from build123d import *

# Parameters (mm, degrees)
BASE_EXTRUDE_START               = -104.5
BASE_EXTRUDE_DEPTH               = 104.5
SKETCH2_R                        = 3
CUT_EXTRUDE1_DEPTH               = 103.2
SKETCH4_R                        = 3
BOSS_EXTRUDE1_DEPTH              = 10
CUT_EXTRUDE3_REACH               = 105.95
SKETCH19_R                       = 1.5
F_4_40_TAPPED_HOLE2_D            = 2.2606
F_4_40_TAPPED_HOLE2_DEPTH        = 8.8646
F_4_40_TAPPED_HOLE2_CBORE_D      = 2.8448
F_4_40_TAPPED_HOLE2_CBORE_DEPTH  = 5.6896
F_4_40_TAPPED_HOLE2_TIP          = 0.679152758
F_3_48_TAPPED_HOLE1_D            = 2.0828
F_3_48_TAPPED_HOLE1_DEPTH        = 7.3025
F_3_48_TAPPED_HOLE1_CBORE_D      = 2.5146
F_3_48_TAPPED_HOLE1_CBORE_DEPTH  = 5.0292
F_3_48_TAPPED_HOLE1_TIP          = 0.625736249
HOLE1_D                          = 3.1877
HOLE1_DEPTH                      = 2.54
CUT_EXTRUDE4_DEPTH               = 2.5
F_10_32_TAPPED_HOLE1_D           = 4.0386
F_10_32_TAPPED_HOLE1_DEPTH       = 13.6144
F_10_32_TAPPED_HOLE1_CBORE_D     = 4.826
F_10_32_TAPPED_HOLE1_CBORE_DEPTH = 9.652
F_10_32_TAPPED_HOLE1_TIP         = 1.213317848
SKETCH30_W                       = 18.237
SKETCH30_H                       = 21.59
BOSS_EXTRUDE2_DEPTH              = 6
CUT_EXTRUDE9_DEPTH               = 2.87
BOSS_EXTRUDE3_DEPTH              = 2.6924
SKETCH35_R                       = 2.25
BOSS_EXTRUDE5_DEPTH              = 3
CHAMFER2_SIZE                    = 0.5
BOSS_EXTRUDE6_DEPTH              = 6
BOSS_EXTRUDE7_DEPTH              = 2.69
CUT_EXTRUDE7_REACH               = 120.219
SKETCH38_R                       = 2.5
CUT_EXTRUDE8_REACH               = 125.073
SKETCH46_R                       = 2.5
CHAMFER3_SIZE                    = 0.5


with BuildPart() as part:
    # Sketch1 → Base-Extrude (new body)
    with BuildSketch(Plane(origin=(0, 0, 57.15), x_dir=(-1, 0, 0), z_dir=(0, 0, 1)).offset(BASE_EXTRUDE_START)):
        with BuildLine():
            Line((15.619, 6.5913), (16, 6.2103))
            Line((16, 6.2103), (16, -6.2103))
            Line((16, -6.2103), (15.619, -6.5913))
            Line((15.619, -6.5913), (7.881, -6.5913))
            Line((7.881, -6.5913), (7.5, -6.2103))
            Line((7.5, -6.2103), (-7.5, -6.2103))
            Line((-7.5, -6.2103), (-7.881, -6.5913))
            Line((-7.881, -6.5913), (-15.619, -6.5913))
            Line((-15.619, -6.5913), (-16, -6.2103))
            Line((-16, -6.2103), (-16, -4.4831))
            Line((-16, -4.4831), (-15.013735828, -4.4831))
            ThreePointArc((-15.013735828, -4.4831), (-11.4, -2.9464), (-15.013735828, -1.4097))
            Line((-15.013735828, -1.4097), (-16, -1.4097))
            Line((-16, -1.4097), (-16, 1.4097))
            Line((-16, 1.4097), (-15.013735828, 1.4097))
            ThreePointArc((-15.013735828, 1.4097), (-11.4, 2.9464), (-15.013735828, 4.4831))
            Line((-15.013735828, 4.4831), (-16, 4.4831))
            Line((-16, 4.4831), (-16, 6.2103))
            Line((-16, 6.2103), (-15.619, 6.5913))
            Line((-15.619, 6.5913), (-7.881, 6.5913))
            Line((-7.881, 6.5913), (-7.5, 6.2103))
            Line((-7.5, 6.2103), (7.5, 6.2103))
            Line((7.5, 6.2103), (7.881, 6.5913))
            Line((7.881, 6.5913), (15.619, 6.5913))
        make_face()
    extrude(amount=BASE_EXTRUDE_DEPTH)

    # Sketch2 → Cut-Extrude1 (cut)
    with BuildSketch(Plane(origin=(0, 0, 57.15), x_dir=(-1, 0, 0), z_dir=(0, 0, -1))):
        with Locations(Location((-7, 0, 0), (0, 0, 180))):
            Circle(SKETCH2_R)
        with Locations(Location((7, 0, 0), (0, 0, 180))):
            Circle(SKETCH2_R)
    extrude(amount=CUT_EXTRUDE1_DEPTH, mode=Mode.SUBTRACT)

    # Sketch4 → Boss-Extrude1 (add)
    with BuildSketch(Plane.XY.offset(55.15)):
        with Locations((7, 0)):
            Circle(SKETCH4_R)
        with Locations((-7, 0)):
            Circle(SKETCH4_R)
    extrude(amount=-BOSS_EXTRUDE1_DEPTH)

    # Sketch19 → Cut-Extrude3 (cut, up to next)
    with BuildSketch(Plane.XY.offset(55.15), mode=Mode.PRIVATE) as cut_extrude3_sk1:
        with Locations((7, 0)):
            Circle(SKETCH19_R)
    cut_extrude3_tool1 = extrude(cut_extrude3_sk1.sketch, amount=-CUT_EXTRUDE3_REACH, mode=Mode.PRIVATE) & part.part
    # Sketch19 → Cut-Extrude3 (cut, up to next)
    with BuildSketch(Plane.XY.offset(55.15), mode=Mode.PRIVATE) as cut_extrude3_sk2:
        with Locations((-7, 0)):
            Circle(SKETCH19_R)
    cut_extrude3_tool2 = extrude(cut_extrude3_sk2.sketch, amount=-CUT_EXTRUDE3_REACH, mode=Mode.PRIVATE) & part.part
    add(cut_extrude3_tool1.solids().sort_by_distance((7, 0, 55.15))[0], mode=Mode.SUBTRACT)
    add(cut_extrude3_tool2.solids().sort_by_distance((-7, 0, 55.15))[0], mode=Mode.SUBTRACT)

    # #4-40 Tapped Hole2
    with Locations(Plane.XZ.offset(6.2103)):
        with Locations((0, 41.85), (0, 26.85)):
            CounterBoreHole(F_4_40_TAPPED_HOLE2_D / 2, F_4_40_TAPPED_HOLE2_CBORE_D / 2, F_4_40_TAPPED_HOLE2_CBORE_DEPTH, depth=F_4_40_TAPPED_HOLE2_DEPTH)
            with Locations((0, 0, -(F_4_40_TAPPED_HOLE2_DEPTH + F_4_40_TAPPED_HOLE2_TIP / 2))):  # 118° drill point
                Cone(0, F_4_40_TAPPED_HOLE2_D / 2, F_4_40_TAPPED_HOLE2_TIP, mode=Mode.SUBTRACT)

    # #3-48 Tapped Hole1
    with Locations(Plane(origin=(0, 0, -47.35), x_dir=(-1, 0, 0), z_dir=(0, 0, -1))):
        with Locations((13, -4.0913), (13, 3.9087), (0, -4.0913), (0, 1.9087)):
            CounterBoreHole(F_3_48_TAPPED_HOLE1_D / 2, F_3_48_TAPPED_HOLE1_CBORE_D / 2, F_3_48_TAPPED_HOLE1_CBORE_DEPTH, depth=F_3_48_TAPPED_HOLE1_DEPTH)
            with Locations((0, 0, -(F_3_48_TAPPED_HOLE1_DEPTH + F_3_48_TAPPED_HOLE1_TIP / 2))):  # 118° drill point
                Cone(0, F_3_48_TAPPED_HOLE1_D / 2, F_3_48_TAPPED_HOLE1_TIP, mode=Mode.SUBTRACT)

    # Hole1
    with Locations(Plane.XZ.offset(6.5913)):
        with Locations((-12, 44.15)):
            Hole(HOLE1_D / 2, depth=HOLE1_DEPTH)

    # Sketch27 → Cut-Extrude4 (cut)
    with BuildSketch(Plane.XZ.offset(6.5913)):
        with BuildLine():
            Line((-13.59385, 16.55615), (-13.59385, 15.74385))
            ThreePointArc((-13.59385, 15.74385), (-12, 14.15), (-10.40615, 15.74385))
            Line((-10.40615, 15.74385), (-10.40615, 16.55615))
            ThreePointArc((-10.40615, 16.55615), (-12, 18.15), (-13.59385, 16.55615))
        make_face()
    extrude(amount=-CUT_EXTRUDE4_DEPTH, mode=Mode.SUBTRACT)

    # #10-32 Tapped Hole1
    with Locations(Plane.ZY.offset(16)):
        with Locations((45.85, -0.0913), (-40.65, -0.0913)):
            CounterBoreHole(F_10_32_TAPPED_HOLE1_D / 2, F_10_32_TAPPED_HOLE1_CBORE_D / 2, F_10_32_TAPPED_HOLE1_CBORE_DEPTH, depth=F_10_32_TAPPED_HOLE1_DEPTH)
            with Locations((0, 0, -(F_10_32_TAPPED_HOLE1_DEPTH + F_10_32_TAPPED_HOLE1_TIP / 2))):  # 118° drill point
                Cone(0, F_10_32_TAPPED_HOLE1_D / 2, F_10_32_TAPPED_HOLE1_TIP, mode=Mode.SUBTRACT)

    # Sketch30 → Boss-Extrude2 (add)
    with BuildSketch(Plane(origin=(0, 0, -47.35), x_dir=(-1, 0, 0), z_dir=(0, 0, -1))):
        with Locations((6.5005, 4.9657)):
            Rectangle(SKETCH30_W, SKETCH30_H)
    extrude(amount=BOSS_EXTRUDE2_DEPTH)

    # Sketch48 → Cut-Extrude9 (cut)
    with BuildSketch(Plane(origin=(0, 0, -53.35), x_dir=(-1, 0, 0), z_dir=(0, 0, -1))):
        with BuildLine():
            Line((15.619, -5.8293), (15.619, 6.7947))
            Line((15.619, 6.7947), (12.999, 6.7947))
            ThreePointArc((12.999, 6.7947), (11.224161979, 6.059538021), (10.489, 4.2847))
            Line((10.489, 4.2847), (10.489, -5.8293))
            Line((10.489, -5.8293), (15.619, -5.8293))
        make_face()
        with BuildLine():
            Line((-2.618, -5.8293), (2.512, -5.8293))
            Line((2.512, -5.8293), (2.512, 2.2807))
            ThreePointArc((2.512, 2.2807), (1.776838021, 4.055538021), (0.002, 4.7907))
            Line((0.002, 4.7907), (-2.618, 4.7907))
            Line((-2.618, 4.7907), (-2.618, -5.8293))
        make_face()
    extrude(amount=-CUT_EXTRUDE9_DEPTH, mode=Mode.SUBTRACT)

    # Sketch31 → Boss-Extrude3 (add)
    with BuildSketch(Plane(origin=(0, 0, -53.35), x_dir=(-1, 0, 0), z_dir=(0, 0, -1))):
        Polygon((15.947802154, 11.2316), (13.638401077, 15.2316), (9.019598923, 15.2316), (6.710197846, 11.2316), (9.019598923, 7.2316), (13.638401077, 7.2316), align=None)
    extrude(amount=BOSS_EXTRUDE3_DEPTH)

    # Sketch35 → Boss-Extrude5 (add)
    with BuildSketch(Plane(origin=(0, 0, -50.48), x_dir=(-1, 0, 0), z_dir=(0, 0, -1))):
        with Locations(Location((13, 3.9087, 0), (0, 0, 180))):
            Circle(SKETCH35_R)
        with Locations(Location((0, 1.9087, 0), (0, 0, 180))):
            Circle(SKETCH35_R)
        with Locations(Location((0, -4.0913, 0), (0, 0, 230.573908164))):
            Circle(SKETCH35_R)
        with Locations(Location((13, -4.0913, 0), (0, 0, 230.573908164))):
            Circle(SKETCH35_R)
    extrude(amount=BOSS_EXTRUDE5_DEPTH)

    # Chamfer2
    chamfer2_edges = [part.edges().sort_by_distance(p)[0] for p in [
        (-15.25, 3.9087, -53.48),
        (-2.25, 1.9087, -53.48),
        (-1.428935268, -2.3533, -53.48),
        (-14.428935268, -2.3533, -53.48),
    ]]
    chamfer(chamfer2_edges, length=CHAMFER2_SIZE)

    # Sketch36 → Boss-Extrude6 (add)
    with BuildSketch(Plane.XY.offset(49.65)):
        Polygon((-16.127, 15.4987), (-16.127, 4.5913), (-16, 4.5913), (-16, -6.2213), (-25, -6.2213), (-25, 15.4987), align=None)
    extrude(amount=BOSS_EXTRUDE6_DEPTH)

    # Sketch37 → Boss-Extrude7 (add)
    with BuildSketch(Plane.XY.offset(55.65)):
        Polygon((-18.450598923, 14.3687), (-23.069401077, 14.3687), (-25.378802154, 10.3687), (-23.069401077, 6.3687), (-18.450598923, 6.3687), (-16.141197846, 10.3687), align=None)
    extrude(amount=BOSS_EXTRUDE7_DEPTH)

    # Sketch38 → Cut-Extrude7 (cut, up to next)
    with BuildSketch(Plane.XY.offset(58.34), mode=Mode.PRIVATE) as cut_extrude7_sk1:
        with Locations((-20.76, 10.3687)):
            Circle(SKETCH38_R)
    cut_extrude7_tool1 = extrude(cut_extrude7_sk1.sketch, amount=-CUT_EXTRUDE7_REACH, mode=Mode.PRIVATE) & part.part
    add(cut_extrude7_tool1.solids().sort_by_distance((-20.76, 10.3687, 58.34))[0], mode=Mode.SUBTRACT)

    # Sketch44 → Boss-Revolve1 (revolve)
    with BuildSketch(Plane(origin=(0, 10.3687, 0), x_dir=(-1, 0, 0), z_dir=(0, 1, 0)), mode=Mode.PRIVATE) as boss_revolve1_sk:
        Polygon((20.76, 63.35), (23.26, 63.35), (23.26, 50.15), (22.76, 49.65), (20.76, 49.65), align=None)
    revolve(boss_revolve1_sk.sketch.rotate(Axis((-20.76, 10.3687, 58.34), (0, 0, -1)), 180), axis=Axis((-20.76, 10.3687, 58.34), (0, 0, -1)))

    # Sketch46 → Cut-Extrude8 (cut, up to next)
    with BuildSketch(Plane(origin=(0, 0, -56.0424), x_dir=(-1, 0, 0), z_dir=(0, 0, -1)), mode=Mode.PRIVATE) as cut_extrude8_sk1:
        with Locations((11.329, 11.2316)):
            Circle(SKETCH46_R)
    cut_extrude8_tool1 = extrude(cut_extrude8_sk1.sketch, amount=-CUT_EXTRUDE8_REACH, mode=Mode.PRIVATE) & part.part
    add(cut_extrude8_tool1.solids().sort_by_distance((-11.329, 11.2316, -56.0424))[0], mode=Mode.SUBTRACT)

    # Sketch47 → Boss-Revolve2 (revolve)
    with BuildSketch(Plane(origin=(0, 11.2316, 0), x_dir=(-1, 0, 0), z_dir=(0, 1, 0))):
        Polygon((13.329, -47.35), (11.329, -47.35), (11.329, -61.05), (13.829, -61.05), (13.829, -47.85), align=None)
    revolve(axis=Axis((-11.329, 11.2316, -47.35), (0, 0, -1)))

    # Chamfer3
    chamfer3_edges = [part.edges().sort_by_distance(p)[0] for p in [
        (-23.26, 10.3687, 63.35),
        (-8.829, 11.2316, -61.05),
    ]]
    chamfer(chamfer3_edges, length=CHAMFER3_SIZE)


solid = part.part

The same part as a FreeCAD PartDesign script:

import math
import FreeCAD as App
import Part
import Sketcher

V = App.Vector
Q = App.Units.Quantity


def edges_at(feature, points):
    """Names of the edges that pass closest to the given points."""
    edges = feature.Shape.Edges
    near = lambda p: min(range(len(edges)), key=lambda i: edges[i].distToShape(Part.Vertex(*p))[0])
    return sorted({f"Edge{near(p) + 1}" for p in points})

doc = App.newDocument("Part")
body = doc.addObject("PartDesign::Body", "Body")

sketch1 = body.newObject("Sketcher::SketchObject", "Sketch")
sketch1.AttachmentSupport = (doc.getObject("XY_Plane"), [""])
sketch1.MapMode = "FlatFace"
sketch1.AttachmentOffset = App.Placement(V(0, 0, -47.35), App.Rotation())
sketch1.addGeometry([
    Part.LineSegment(V(-16, -6.2, 0), V(-15.6, -6.6, 0)),
    Part.LineSegment(V(-15.6, -6.6, 0), V(-7.9, -6.6, 0)),
    Part.LineSegment(V(-7.9, -6.6, 0), V(-7.5, -6.2, 0)),
    Part.LineSegment(V(-7.5, -6.2, 0), V(7.5, -6.2, 0)),
    Part.LineSegment(V(7.5, -6.2, 0), V(7.9, -6.6, 0)),
    Part.LineSegment(V(7.9, -6.6, 0), V(15.6, -6.6, 0)),
    Part.LineSegment(V(15.6, -6.6, 0), V(16, -6.2, 0)),
    Part.LineSegment(V(16, -6.2, 0), V(16, -4.5, 0)),
    Part.LineSegment(V(16, -4.5, 0), V(15, -4.5, 0)),
    Part.ArcOfCircle(Part.Circle(V(13.5, -2.9, 0), V(0, 0, 1), 2.1), math.radians(46), math.radians(314)),
    Part.LineSegment(V(15, -1.4, 0), V(16, -1.4, 0)),
    Part.LineSegment(V(16, -1.4, 0), V(16, 1.4, 0)),
    Part.LineSegment(V(16, 1.4, 0), V(15, 1.4, 0)),
    Part.ArcOfCircle(Part.Circle(V(13.5, 2.9, 0), V(0, 0, 1), 2.1), math.radians(46), math.radians(314)),
    Part.LineSegment(V(15, 4.5, 0), V(16, 4.5, 0)),
    Part.LineSegment(V(16, 4.5, 0), V(16, 6.2, 0)),
    Part.LineSegment(V(16, 6.2, 0), V(15.6, 6.6, 0)),
    Part.LineSegment(V(15.6, 6.6, 0), V(7.9, 6.6, 0)),
    Part.LineSegment(V(7.9, 6.6, 0), V(7.5, 6.2, 0)),
    Part.LineSegment(V(7.5, 6.2, 0), V(-7.5, 6.2, 0)),
    Part.LineSegment(V(-7.5, 6.2, 0), V(-7.9, 6.6, 0)),
    Part.LineSegment(V(-7.9, 6.6, 0), V(-15.6, 6.6, 0)),
    Part.LineSegment(V(-15.6, 6.6, 0), V(-16, 6.2, 0)),
    Part.LineSegment(V(-16, 6.2, 0), V(-16, -6.2, 0)),
], False)
sketch1.addConstraint([
    Sketcher.Constraint("Coincident", 0, 2, 1, 1),
    Sketcher.Constraint("Coincident", 1, 2, 2, 1),
    Sketcher.Constraint("Coincident", 2, 2, 3, 1),
    Sketcher.Constraint("Coincident", 3, 2, 4, 1),
    Sketcher.Constraint("Coincident", 4, 2, 5, 1),
    Sketcher.Constraint("Coincident", 5, 2, 6, 1),
    Sketcher.Constraint("Coincident", 6, 2, 7, 1),
    Sketcher.Constraint("Coincident", 7, 2, 8, 1),
    Sketcher.Constraint("Coincident", 8, 2, 9, 2),
    Sketcher.Constraint("Coincident", 9, 1, 10, 1),
    Sketcher.Constraint("Coincident", 10, 2, 11, 1),
    Sketcher.Constraint("Coincident", 11, 2, 12, 1),
    Sketcher.Constraint("Coincident", 12, 2, 13, 2),
    Sketcher.Constraint("Coincident", 13, 1, 14, 1),
    Sketcher.Constraint("Coincident", 14, 2, 15, 1),
    Sketcher.Constraint("Coincident", 15, 2, 16, 1),
    Sketcher.Constraint("Coincident", 16, 2, 17, 1),
    Sketcher.Constraint("Coincident", 17, 2, 18, 1),
    Sketcher.Constraint("Coincident", 18, 2, 19, 1),
    Sketcher.Constraint("Coincident", 19, 2, 20, 1),
    Sketcher.Constraint("Coincident", 20, 2, 21, 1),
    Sketcher.Constraint("Coincident", 21, 2, 22, 1),
    Sketcher.Constraint("Coincident", 22, 2, 23, 1),
    Sketcher.Constraint("Coincident", 23, 2, 0, 1),
    Sketcher.Constraint("Horizontal", 1),
    Sketcher.Constraint("Horizontal", 3),
    Sketcher.Constraint("Horizontal", 5),
    Sketcher.Constraint("Vertical", 7),
    Sketcher.Constraint("Horizontal", 8),
    Sketcher.Constraint("Horizontal", 10),
    Sketcher.Constraint("Vertical", 11),
    Sketcher.Constraint("Horizontal", 12),
    Sketcher.Constraint("Horizontal", 14),
    Sketcher.Constraint("Vertical", 15),
    Sketcher.Constraint("Horizontal", 17),
    Sketcher.Constraint("Horizontal", 19),
    Sketcher.Constraint("Horizontal", 21),
    Sketcher.Constraint("Vertical", 23),
    Sketcher.Constraint("Equal", 9, 13),
    Sketcher.Constraint("Symmetric", 0, 2, 16, 2, -1, 1),
    Sketcher.Constraint("Symmetric", 2, 2, 18, 2, -1, 1),
    Sketcher.Constraint("Symmetric", 4, 2, 20, 2, -1, 1),
    Sketcher.Constraint("Symmetric", 6, 2, 22, 2, -1, 1),
    Sketcher.Constraint("Symmetric", 15, 2, 23, 2, -1, 1),
    Sketcher.Constraint("Symmetric", 1, 2, 4, 2, -2),
    Sketcher.Constraint("Symmetric", 9, 3, 13, 3, -1),
    Sketcher.Constraint("Perpendicular", 0, 2),
    Sketcher.Constraint("Perpendicular", 2, 4),
    Sketcher.Constraint("Perpendicular", 4, 6),
    Sketcher.Constraint("Perpendicular", 16, 18),
    Sketcher.Constraint("Perpendicular", 18, 20),
    Sketcher.Constraint("Perpendicular", 20, 22),
    Sketcher.Constraint("Horizontal", 3, 2, 6, 2),
    Sketcher.Constraint("Horizontal", 15, 2, 18, 2),
    Sketcher.Constraint("Vertical", 8, 2, 9, 1),
    Sketcher.Constraint("Vertical", 7, 2, 10, 2),
    Sketcher.Constraint("Vertical", 9, 1, 12, 2),
    Sketcher.Constraint("Vertical", 12, 2, 13, 1),
    Sketcher.Constraint("Vertical", 5, 2, 16, 2),
    Sketcher.Constraint("DistanceX", 3, 1, 3, 2, Q("15 mm")),
    Sketcher.Constraint("DistanceX", -1, 1, 6, 2, Q("16 mm")),
    Sketcher.Constraint("Radius", 9, Q("2.1336 mm")),
    Sketcher.Constraint("DistanceX", 1, 1, 1, 2, Q("7.738 mm")),
    Sketcher.Constraint("DistanceY", 7, 1, 7, 2, Q("1.7272 mm")),
    Sketcher.Constraint("DistanceY", 11, 1, 11, 2, Q("2.8194 mm")),
    Sketcher.Constraint("DistanceY", 23, 2, 23, 1, Q("12.4206 mm")),
    Sketcher.Constraint("DistanceX", -1, 1, 9, 3, Q("13.5336 mm")),
])
pad1 = body.newObject("PartDesign::Pad", "Pad")
pad1.Profile = sketch1
pad1.Length = 104.5

sketch2 = body.newObject("Sketcher::SketchObject", "Sketch001")
sketch2.AttachmentSupport = (doc.getObject("XY_Plane"), [""])
sketch2.MapMode = "FlatFace"
sketch2.AttachmentOffset = App.Placement(V(0, 0, 57.15), App.Rotation())
sketch2.addGeometry([
    Part.Circle(V(7, 0, 0), V(0, 0, 1), 3),
    Part.Circle(V(-7, 0, 0), V(0, 0, 1), 3),
], False)
sketch2.addConstraint([
    Sketcher.Constraint("Equal", 0, 1),
    Sketcher.Constraint("Symmetric", 0, 3, 1, 3, -1, 1),
    Sketcher.Constraint("PointOnObject", 0, 3, -1),
    Sketcher.Constraint("Diameter", 0, Q("6 mm")),
    Sketcher.Constraint("DistanceX", -1, 1, 0, 3, Q("7 mm")),
])
pocket1 = body.newObject("PartDesign::Pocket", "Pocket")
pocket1.Profile = sketch2
pocket1.Length = 103.2

sketch3 = body.newObject("Sketcher::SketchObject", "Sketch002")
sketch3.AttachmentSupport = (doc.getObject("XY_Plane"), [""])
sketch3.MapMode = "FlatFace"
sketch3.AttachmentOffset = App.Placement(V(0, 0, 55.15), App.Rotation())
sketch3.addGeometry([
    Part.Circle(V(7, 0, 0), V(0, 0, 1), 3),
    Part.Circle(V(-7, 0, 0), V(0, 0, 1), 3),
], False)
sketch3.addConstraint([
    Sketcher.Constraint("Equal", 0, 1),
    Sketcher.Constraint("Symmetric", 0, 3, 1, 3, -1, 1),
    Sketcher.Constraint("PointOnObject", 0, 3, -1),
    Sketcher.Constraint("Diameter", 0, Q("6 mm")),
    Sketcher.Constraint("DistanceX", -1, 1, 0, 3, Q("7 mm")),
])
pad2 = body.newObject("PartDesign::Pad", "Pad001")
pad2.Profile = sketch3
pad2.Length = 10
pad2.Reversed = True

sketch4 = body.newObject("Sketcher::SketchObject", "Sketch003")
sketch4.AttachmentSupport = (doc.getObject("XY_Plane"), [""])
sketch4.MapMode = "FlatFace"
sketch4.AttachmentOffset = App.Placement(V(0, 0, 55.15), App.Rotation())
sketch4.addGeometry(Part.Circle(V(7, 0, 0), V(0, 0, 1), 1.5), False)
sketch4.addConstraint([
    Sketcher.Constraint("PointOnObject", 0, 3, -1),
    Sketcher.Constraint("Diameter", 0, Q("3 mm")),
    Sketcher.Constraint("DistanceX", -1, 1, 0, 3, Q("7 mm")),
])
pocket2 = body.newObject("PartDesign::Pocket", "Pocket001")
pocket2.Profile = sketch4
pocket2.Type = "UpToFirst"

sketch5 = body.newObject("Sketcher::SketchObject", "Sketch004")
sketch5.AttachmentSupport = (doc.getObject("XY_Plane"), [""])
sketch5.MapMode = "FlatFace"
sketch5.AttachmentOffset = App.Placement(V(0, 0, 55.15), App.Rotation())
sketch5.addGeometry(Part.Circle(V(-7, 0, 0), V(0, 0, 1), 1.5), False)
sketch5.addConstraint([
    Sketcher.Constraint("PointOnObject", 0, 3, -1),
    Sketcher.Constraint("Diameter", 0, Q("3 mm")),
    Sketcher.Constraint("DistanceX", 0, 3, -1, 1, Q("7 mm")),
])
pocket3 = body.newObject("PartDesign::Pocket", "Pocket002")
pocket3.Profile = sketch5
pocket3.Type = "UpToFirst"

sketch6 = body.newObject("Sketcher::SketchObject", "Sketch005")
sketch6.AttachmentSupport = (doc.getObject("XZ_Plane"), [""])
sketch6.MapMode = "FlatFace"
sketch6.AttachmentOffset = App.Placement(V(0, 0, 6.2103), App.Rotation())
sketch6.addGeometry([
    Part.Circle(V(0, 41.9, 0), V(0, 0, 1), 1.1),
    Part.Circle(V(0, 26.9, 0), V(0, 0, 1), 1.1),
], False)
sketch6.addConstraint([
    Sketcher.Constraint("Equal", 0, 1),
    Sketcher.Constraint("PointOnObject", 0, 3, -2),
    Sketcher.Constraint("PointOnObject", 1, 3, -2),
    Sketcher.Constraint("DistanceY", 1, 3, 0, 3, Q("15 mm")),
    Sketcher.Constraint("Diameter", 0, Q("2.2606 mm")),
    Sketcher.Constraint("DistanceY", -1, 1, 0, 3, Q("41.85 mm")),
])
doc.recompute()
hole = body.newObject("PartDesign::Hole", "Hole")
hole.Profile = sketch6
hole.ThreadType = "None"
hole.Diameter = 2.2606
hole.DepthType = "Dimension"
hole.Depth = 8.8646
hole.DrillPoint = "Angled"
hole.DrillPointAngle = 118
hole.HoleCutType = "Counterbore"
hole.HoleCutDiameter = 2.8448
hole.HoleCutDepth = 5.6896

sketch7 = body.newObject("Sketcher::SketchObject", "Sketch006")
sketch7.AttachmentSupport = (doc.getObject("XY_Plane"), [""])
sketch7.MapMode = "FlatFace"
sketch7.AttachmentOffset = App.Placement(V(0, 0, -47.35), App.Rotation())
sketch7.addGeometry([
    Part.Circle(V(-13, -4.1, 0), V(0, 0, 1), 1),
    Part.Circle(V(-13, 3.9, 0), V(0, 0, 1), 1),
    Part.Circle(V(0, -4.1, 0), V(0, 0, 1), 1),
    Part.Circle(V(0, 1.9, 0), V(0, 0, 1), 1),
], False)
sketch7.addConstraint([
    Sketcher.Constraint("Equal", 0, 1),
    Sketcher.Constraint("Equal", 1, 2),
    Sketcher.Constraint("Equal", 2, 3),
    Sketcher.Constraint("PointOnObject", 2, 3, -2),
    Sketcher.Constraint("PointOnObject", 3, 3, -2),
    Sketcher.Constraint("Horizontal", 0, 3, 2, 3),
    Sketcher.Constraint("Vertical", 0, 3, 1, 3),
    Sketcher.Constraint("DistanceX", 0, 3, -1, 1, Q("13 mm")),
    Sketcher.Constraint("DistanceY", 0, 3, 1, 3, Q("8 mm")),
    Sketcher.Constraint("DistanceY", 2, 3, 3, 3, Q("6 mm")),
    Sketcher.Constraint("Diameter", 0, Q("2.0828 mm")),
    Sketcher.Constraint("DistanceY", 0, 3, -1, 1, Q("4.0913 mm")),
])
doc.recompute()
hole2 = body.newObject("PartDesign::Hole", "Hole001")
hole2.Profile = sketch7
hole2.ThreadType = "None"
hole2.Diameter = 2.0828
hole2.DepthType = "Dimension"
hole2.Depth = 7.3025
hole2.DrillPoint = "Angled"
hole2.DrillPointAngle = 118
hole2.HoleCutType = "Counterbore"
hole2.HoleCutDiameter = 2.5146
hole2.HoleCutDepth = 5.0292
hole2.Reversed = True

sketch8 = body.newObject("Sketcher::SketchObject", "Sketch007")
sketch8.AttachmentSupport = (doc.getObject("XZ_Plane"), [""])
sketch8.MapMode = "FlatFace"
sketch8.AttachmentOffset = App.Placement(V(0, 0, 6.5913), App.Rotation())
sketch8.addGeometry(Part.Circle(V(-12, 44.1, 0), V(0, 0, 1), 1.6), False)
sketch8.addConstraint([
    Sketcher.Constraint("DistanceX", 0, 3, -1, 1, Q("12 mm")),
    Sketcher.Constraint("Diameter", 0, Q("3.1877 mm")),
    Sketcher.Constraint("DistanceY", -1, 1, 0, 3, Q("44.15 mm")),
])
doc.recompute()
hole3 = body.newObject("PartDesign::Hole", "Hole002")
hole3.Profile = sketch8
hole3.ThreadType = "None"
hole3.Diameter = 3.1877
hole3.DepthType = "Dimension"
hole3.Depth = 2.54
hole3.DrillPoint = "Flat"

sketch9 = body.newObject("Sketcher::SketchObject", "Sketch008")
sketch9.AttachmentSupport = (doc.getObject("XZ_Plane"), [""])
sketch9.MapMode = "FlatFace"
sketch9.AttachmentOffset = App.Placement(V(0, 0, 6.5913), App.Rotation())
sketch9.addGeometry([
    Part.LineSegment(V(-13.6, 16.6, 0), V(-13.6, 15.7, 0)),
    Part.ArcOfCircle(Part.Circle(V(-12, 15.7, 0), V(0, 0, 1), 1.6), math.radians(180), math.radians(360)),
    Part.LineSegment(V(-10.4, 15.7, 0), V(-10.4, 16.6, 0)),
    Part.ArcOfCircle(Part.Circle(V(-12, 16.6, 0), V(0, 0, 1), 1.6), math.radians(0), math.radians(180)),
], False)
sketch9.addConstraint([
    Sketcher.Constraint("Tangent", 0, 2, 1, 1),
    Sketcher.Constraint("Tangent", 1, 2, 2, 1),
    Sketcher.Constraint("Tangent", 2, 2, 3, 1),
    Sketcher.Constraint("Tangent", 3, 2, 0, 1),
    Sketcher.Constraint("Vertical", 0),
    Sketcher.Constraint("Vertical", 2),
    Sketcher.Constraint("DistanceX", 1, 3, -1, 1, Q("12 mm")),
    Sketcher.Constraint("Radius", 1, Q("1.59385 mm")),
    Sketcher.Constraint("DistanceY", 0, 2, 0, 1, Q("0.8123 mm")),
    Sketcher.Constraint("DistanceY", -1, 1, 1, 3, Q("15.74385 mm")),
])
pocket4 = body.newObject("PartDesign::Pocket", "Pocket003")
pocket4.Profile = sketch9
pocket4.Length = 2.5

sketch10 = body.newObject("Sketcher::SketchObject", "Sketch009")
sketch10.AttachmentSupport = (doc.getObject("YZ_Plane"), [""])
sketch10.MapMode = "FlatFace"
sketch10.AttachmentOffset = App.Placement(V(0, 0, -16), App.Rotation())
sketch10.addGeometry([
    Part.Circle(V(-0.1, 45.9, 0), V(0, 0, 1), 2),
    Part.Circle(V(-0.1, -40.6, 0), V(0, 0, 1), 2),
], False)
sketch10.addConstraint([
    Sketcher.Constraint("Equal", 0, 1),
    Sketcher.Constraint("Vertical", 0, 3, 1, 3),
    Sketcher.Constraint("Diameter", 0, Q("4.0386 mm")),
    Sketcher.Constraint("DistanceY", 1, 3, 0, 3, Q("86.5 mm")),
    Sketcher.Constraint("DistanceY", -1, 1, 0, 3, Q("45.85 mm")),
    Sketcher.Constraint("DistanceX", 0, 3, -1, 1, Q("0.0913 mm")),
])
doc.recompute()
hole4 = body.newObject("PartDesign::Hole", "Hole003")
hole4.Profile = sketch10
hole4.ThreadType = "None"
hole4.Diameter = 4.0386
hole4.DepthType = "Dimension"
hole4.Depth = 13.6144
hole4.DrillPoint = "Angled"
hole4.DrillPointAngle = 118
hole4.HoleCutType = "Counterbore"
hole4.HoleCutDiameter = 4.826
hole4.HoleCutDepth = 9.652
hole4.Reversed = True

sketch11 = body.newObject("Sketcher::SketchObject", "Sketch010")
sketch11.AttachmentSupport = (doc.getObject("XY_Plane"), [""])
sketch11.MapMode = "FlatFace"
sketch11.AttachmentOffset = App.Placement(V(0, 0, -47.35), App.Rotation())
sketch11.addGeometry([
    Part.LineSegment(V(3, 16, 0), V(3, -6, 0)),
    Part.LineSegment(V(3, -6, 0), V(-16, -6, 0)),
    Part.LineSegment(V(-16, -6, 0), V(-16, 16, 0)),
    Part.LineSegment(V(-16, 16, 0), V(3, 16, 0)),
], False)
sketch11.addConstraint([
    Sketcher.Constraint("Coincident", 0, 2, 1, 1),
    Sketcher.Constraint("Coincident", 1, 2, 2, 1),
    Sketcher.Constraint("Coincident", 2, 2, 3, 1),
    Sketcher.Constraint("Coincident", 3, 2, 0, 1),
    Sketcher.Constraint("Vertical", 0),
    Sketcher.Constraint("Horizontal", 1),
    Sketcher.Constraint("Vertical", 2),
    Sketcher.Constraint("Horizontal", 3),
    Sketcher.Constraint("DistanceY", 0, 2, 0, 1, Q("21.59 mm")),
    Sketcher.Constraint("DistanceX", 1, 2, 1, 1, Q("18.237 mm")),
    Sketcher.Constraint("DistanceX", -1, 1, 0, 2, Q("2.618 mm")),
    Sketcher.Constraint("DistanceY", 0, 2, -1, 1, Q("5.8293 mm")),
])
pad3 = body.newObject("PartDesign::Pad", "Pad002")
pad3.Profile = sketch11
pad3.Length = 6
pad3.Reversed = True

sketch12 = body.newObject("Sketcher::SketchObject", "Sketch011")
sketch12.AttachmentSupport = (doc.getObject("XY_Plane"), [""])
sketch12.MapMode = "FlatFace"
sketch12.AttachmentOffset = App.Placement(V(0, 0, -53.35), App.Rotation())
sketch12.addGeometry([
    Part.LineSegment(V(-15.6, -5.8, 0), V(-15.6, 6.8, 0)),
    Part.LineSegment(V(-15.6, 6.8, 0), V(-13, 6.8, 0)),
    Part.ArcOfCircle(Part.Circle(V(-13, 4.3, 0), V(0, 0, 1), 2.5), math.radians(0), math.radians(90)),
    Part.LineSegment(V(-10.5, 4.3, 0), V(-10.5, -5.8, 0)),
    Part.LineSegment(V(-10.5, -5.8, 0), V(-15.6, -5.8, 0)),
    Part.LineSegment(V(2.6, -5.8, 0), V(-2.5, -5.8, 0)),
    Part.LineSegment(V(-2.5, -5.8, 0), V(-2.5, 2.3, 0)),
    Part.ArcOfCircle(Part.Circle(V(0, 2.3, 0), V(0, 0, 1), 2.5), math.radians(90), math.radians(180)),
    Part.LineSegment(V(0, 4.8, 0), V(2.6, 4.8, 0)),
    Part.LineSegment(V(2.6, 4.8, 0), V(2.6, -5.8, 0)),
], False)
sketch12.addConstraint([
    Sketcher.Constraint("Coincident", 0, 2, 1, 1),
    Sketcher.Constraint("Tangent", 1, 2, 2, 2),
    Sketcher.Constraint("Tangent", 2, 1, 3, 1),
    Sketcher.Constraint("Coincident", 3, 2, 4, 1),
    Sketcher.Constraint("Coincident", 4, 2, 0, 1),
    Sketcher.Constraint("Coincident", 5, 2, 6, 1),
    Sketcher.Constraint("Tangent", 6, 2, 7, 2),
    Sketcher.Constraint("Tangent", 7, 1, 8, 1),
    Sketcher.Constraint("Coincident", 8, 2, 9, 1),
    Sketcher.Constraint("Coincident", 9, 2, 5, 1),
    Sketcher.Constraint("Vertical", 0),
    Sketcher.Constraint("Horizontal", 1),
    Sketcher.Constraint("Vertical", 3),
    Sketcher.Constraint("Horizontal", 4),
    Sketcher.Constraint("Horizontal", 5),
    Sketcher.Constraint("Vertical", 6),
    Sketcher.Constraint("Horizontal", 8),
    Sketcher.Constraint("Vertical", 9),
    Sketcher.Constraint("Equal", 2, 7),
    Sketcher.Constraint("Horizontal", 4, 2, 5, 2),
    Sketcher.Constraint("Equal", 4, 5),
    Sketcher.Constraint("Radius", 2, Q("2.51 mm")),
    Sketcher.Constraint("DistanceX", 1, 1, 1, 2, Q("2.62 mm")),
    Sketcher.Constraint("DistanceY", 6, 1, 6, 2, Q("8.11 mm")),
    Sketcher.Constraint("DistanceY", 0, 1, 0, 2, Q("12.624 mm")),
    Sketcher.Constraint("DistanceX", 2, 3, -1, 1, Q("12.999 mm")),
    Sketcher.Constraint("DistanceX", 7, 3, -1, 1, Q("0.002 mm")),
    Sketcher.Constraint("DistanceY", -1, 1, 2, 3, Q("4.2847 mm")),
])
pocket5 = body.newObject("PartDesign::Pocket", "Pocket004")
pocket5.Profile = sketch12
pocket5.Length = 2.87
pocket5.Reversed = True

sketch13 = body.newObject("Sketcher::SketchObject", "Sketch012")
sketch13.AttachmentSupport = (doc.getObject("XY_Plane"), [""])
sketch13.MapMode = "FlatFace"
sketch13.AttachmentOffset = App.Placement(V(0, 0, -53.35), App.Rotation())
sketch13.addGeometry([
    Part.LineSegment(V(-15.9, 11.2, 0), V(-13.6, 15.2, 0)),
    Part.LineSegment(V(-13.6, 15.2, 0), V(-9, 15.2, 0)),
    Part.LineSegment(V(-9, 15.2, 0), V(-6.7, 11.2, 0)),
    Part.LineSegment(V(-6.7, 11.2, 0), V(-9, 7.2, 0)),
    Part.LineSegment(V(-9, 7.2, 0), V(-13.6, 7.2, 0)),
    Part.LineSegment(V(-13.6, 7.2, 0), V(-15.9, 11.2, 0)),
], False)
sketch13.addConstraint([
    Sketcher.Constraint("Coincident", 0, 2, 1, 1),
    Sketcher.Constraint("Coincident", 1, 2, 2, 1),
    Sketcher.Constraint("Coincident", 2, 2, 3, 1),
    Sketcher.Constraint("Coincident", 3, 2, 4, 1),
    Sketcher.Constraint("Coincident", 4, 2, 5, 1),
    Sketcher.Constraint("Coincident", 5, 2, 0, 1),
    Sketcher.Constraint("Horizontal", 1),
    Sketcher.Constraint("Horizontal", 4),
    Sketcher.Constraint("Parallel", 0, 3),
    Sketcher.Constraint("Parallel", 2, 5),
    Sketcher.Constraint("Horizontal", 2, 2, 5, 2),
    Sketcher.Constraint("Vertical", 1, 2, 3, 2),
    Sketcher.Constraint("Vertical", 0, 2, 4, 2),
    Sketcher.Constraint("Angle", 0, Q("60 deg")),
    Sketcher.Constraint("DistanceY", 2, 2, 1, 2, Q("4 mm")),
    Sketcher.Constraint("DistanceX", 0, 2, -1, 1, Q("13.638401 mm")),
    Sketcher.Constraint("DistanceY", -1, 1, 0, 2, Q("15.2316 mm")),
    Sketcher.Constraint("DistanceX", 1, 2, -1, 1, Q("9.019599 mm")),
])
pad4 = body.newObject("PartDesign::Pad", "Pad003")
pad4.Profile = sketch13
pad4.Length = 2.6924
pad4.Reversed = True

sketch14 = body.newObject("Sketcher::SketchObject", "Sketch013")
sketch14.AttachmentSupport = (doc.getObject("XY_Plane"), [""])
sketch14.MapMode = "FlatFace"
sketch14.AttachmentOffset = App.Placement(V(0, 0, -50.48), App.Rotation())
sketch14.addGeometry([
    Part.Circle(V(-13, 3.9, 0), V(0, 0, 1), 2.2),
    Part.Circle(V(0, 1.9, 0), V(0, 0, 1), 2.2),
    Part.Circle(V(0, -4.1, 0), V(0, 0, 1), 2.2),
    Part.Circle(V(-13, -4.1, 0), V(0, 0, 1), 2.2),
], False)
sketch14.addConstraint([
    Sketcher.Constraint("Equal", 0, 1),
    Sketcher.Constraint("Equal", 1, 2),
    Sketcher.Constraint("Equal", 2, 3),
    Sketcher.Constraint("PointOnObject", 1, 3, -2),
    Sketcher.Constraint("PointOnObject", 2, 3, -2),
    Sketcher.Constraint("Horizontal", 2, 3, 3, 3),
    Sketcher.Constraint("Vertical", 0, 3, 3, 3),
    Sketcher.Constraint("Diameter", 0, Q("4.5 mm")),
    Sketcher.Constraint("DistanceX", 0, 3, -1, 1, Q("13 mm")),
    Sketcher.Constraint("DistanceY", 1, 3, 0, 3, Q("2 mm")),
    Sketcher.Constraint("DistanceY", 2, 3, 1, 3, Q("6 mm")),
    Sketcher.Constraint("DistanceY", -1, 1, 0, 3, Q("3.9087 mm")),
])
pad5 = body.newObject("PartDesign::Pad", "Pad004")
pad5.Profile = sketch14
pad5.Length = 3
pad5.Reversed = True
doc.recompute()

chamfer = body.newObject("PartDesign::Chamfer", "Chamfer")
chamfer.Base = (pad5, edges_at(pad5, [
    (-15.25, 3.909, -53.48),
    (-2.25, 1.909, -53.48),
    (-1.429, -2.353, -53.48),
    (-14.429, -2.353, -53.48),
]))
chamfer.Size = 0.5

sketch15 = body.newObject("Sketcher::SketchObject", "Sketch014")
sketch15.AttachmentSupport = (doc.getObject("XY_Plane"), [""])
sketch15.MapMode = "FlatFace"
sketch15.AttachmentOffset = App.Placement(V(0, 0, 49.65), App.Rotation())
sketch15.addGeometry([
    Part.LineSegment(V(-16.13, 4.59, 0), V(-16.13, 15.5, 0)),
    Part.LineSegment(V(-16.13, 15.5, 0), V(-25, 15.5, 0)),
    Part.LineSegment(V(-25, 15.5, 0), V(-25, -6.22, 0)),
    Part.LineSegment(V(-25, -6.22, 0), V(-16, -6.22, 0)),
    Part.LineSegment(V(-16, -6.22, 0), V(-16, 4.59, 0)),
    Part.LineSegment(V(-16, 4.59, 0), V(-16.13, 4.59, 0)),
], False)
sketch15.addConstraint([
    Sketcher.Constraint("Coincident", 0, 2, 1, 1),
    Sketcher.Constraint("Coincident", 1, 2, 2, 1),
    Sketcher.Constraint("Coincident", 2, 2, 3, 1),
    Sketcher.Constraint("Coincident", 3, 2, 4, 1),
    Sketcher.Constraint("Coincident", 4, 2, 5, 1),
    Sketcher.Constraint("Coincident", 5, 2, 0, 1),
    Sketcher.Constraint("Vertical", 0),
    Sketcher.Constraint("Horizontal", 1),
    Sketcher.Constraint("Vertical", 2),
    Sketcher.Constraint("Horizontal", 3),
    Sketcher.Constraint("Vertical", 4),
    Sketcher.Constraint("Horizontal", 5),
    Sketcher.Constraint("DistanceX", 3, 1, 3, 2, Q("9 mm")),
    Sketcher.Constraint("DistanceX", 1, 2, -1, 1, Q("25 mm")),
    Sketcher.Constraint("DistanceY", 2, 2, 2, 1, Q("21.72 mm")),
    Sketcher.Constraint("DistanceX", 1, 2, 1, 1, Q("8.873 mm")),
    Sketcher.Constraint("DistanceY", 0, 1, 0, 2, Q("10.9074 mm")),
    Sketcher.Constraint("DistanceY", -1, 1, 0, 2, Q("15.4987 mm")),
])
pad6 = body.newObject("PartDesign::Pad", "Pad005")
pad6.Profile = sketch15
pad6.Length = 6

sketch16 = body.newObject("Sketcher::SketchObject", "Sketch015")
sketch16.AttachmentSupport = (doc.getObject("XY_Plane"), [""])
sketch16.MapMode = "FlatFace"
sketch16.AttachmentOffset = App.Placement(V(0, 0, 55.65), App.Rotation())
sketch16.addGeometry([
    Part.LineSegment(V(-18.5, 14.4, 0), V(-23.1, 14.4, 0)),
    Part.LineSegment(V(-23.1, 14.4, 0), V(-25.4, 10.4, 0)),
    Part.LineSegment(V(-25.4, 10.4, 0), V(-23.1, 6.4, 0)),
    Part.LineSegment(V(-23.1, 6.4, 0), V(-18.5, 6.4, 0)),
    Part.LineSegment(V(-18.5, 6.4, 0), V(-16.1, 10.4, 0)),
    Part.LineSegment(V(-16.1, 10.4, 0), V(-18.5, 14.4, 0)),
], False)
sketch16.addConstraint([
    Sketcher.Constraint("Coincident", 0, 2, 1, 1),
    Sketcher.Constraint("Coincident", 1, 2, 2, 1),
    Sketcher.Constraint("Coincident", 2, 2, 3, 1),
    Sketcher.Constraint("Coincident", 3, 2, 4, 1),
    Sketcher.Constraint("Coincident", 4, 2, 5, 1),
    Sketcher.Constraint("Coincident", 5, 2, 0, 1),
    Sketcher.Constraint("Horizontal", 0),
    Sketcher.Constraint("Horizontal", 3),
    Sketcher.Constraint("Parallel", 1, 4),
    Sketcher.Constraint("Parallel", 2, 5),
    Sketcher.Constraint("Horizontal", 1, 2, 4, 2),
    Sketcher.Constraint("Vertical", 0, 2, 2, 2),
    Sketcher.Constraint("Vertical", 3, 2, 5, 2),
    Sketcher.Constraint("Angle", 1, Q("-120 deg")),
    Sketcher.Constraint("DistanceY", 1, 2, 0, 2, Q("4 mm")),
    Sketcher.Constraint("DistanceX", 0, 2, -1, 1, Q("23.069401 mm")),
    Sketcher.Constraint("DistanceY", -1, 1, 0, 2, Q("14.3687 mm")),
    Sketcher.Constraint("DistanceX", 3, 2, -1, 1, Q("18.450599 mm")),
])
pad7 = body.newObject("PartDesign::Pad", "Pad006")
pad7.Profile = sketch16
pad7.Length = 2.69

sketch17 = body.newObject("Sketcher::SketchObject", "Sketch016")
sketch17.AttachmentSupport = (doc.getObject("XY_Plane"), [""])
sketch17.MapMode = "FlatFace"
sketch17.AttachmentOffset = App.Placement(V(0, 0, 58.34), App.Rotation())
sketch17.addGeometry(Part.Circle(V(-20.8, 10.4, 0), V(0, 0, 1), 2.5), False)
sketch17.addConstraint([
    Sketcher.Constraint("Diameter", 0, Q("5 mm")),
    Sketcher.Constraint("DistanceX", 0, 3, -1, 1, Q("20.76 mm")),
    Sketcher.Constraint("DistanceY", -1, 1, 0, 3, Q("10.3687 mm")),
])
pocket6 = body.newObject("PartDesign::Pocket", "Pocket005")
pocket6.Profile = sketch17
pocket6.Type = "UpToFirst"

sketch18 = body.newObject("Sketcher::SketchObject", "Sketch017")
sketch18.AttachmentSupport = (doc.getObject("XZ_Plane"), [""])
sketch18.MapMode = "FlatFace"
sketch18.AttachmentOffset = App.Placement(V(0, 0, -10.3687), App.Rotation())
sketch18.addGeometry([
    Part.LineSegment(V(-23.3, 63.4, 0), V(-20.8, 63.4, 0)),
    Part.LineSegment(V(-20.8, 63.4, 0), V(-20.8, 49.6, 0)),
    Part.LineSegment(V(-20.8, 49.6, 0), V(-22.8, 49.6, 0)),
    Part.LineSegment(V(-22.8, 49.6, 0), V(-23.3, 50.1, 0)),
    Part.LineSegment(V(-23.3, 50.1, 0), V(-23.3, 63.4, 0)),
], False)
sketch18.addGeometry(Part.LineSegment(V(-20.8, 63.4, 0), V(-20.8, 49.6, 0)), True)
sketch18.addConstraint([
    Sketcher.Constraint("Coincident", 0, 2, 1, 1),
    Sketcher.Constraint("Coincident", 1, 2, 2, 1),
    Sketcher.Constraint("Coincident", 2, 2, 3, 1),
    Sketcher.Constraint("Coincident", 3, 2, 4, 1),
    Sketcher.Constraint("Coincident", 4, 2, 0, 1),
    Sketcher.Constraint("Horizontal", 0),
    Sketcher.Constraint("Vertical", 1),
    Sketcher.Constraint("Horizontal", 2),
    Sketcher.Constraint("Vertical", 4),
    Sketcher.Constraint("Vertical", 5),
    Sketcher.Constraint("Coincident", 5, 1, 0, 2),
    Sketcher.Constraint("Horizontal", 2, 2, 5, 2),
    Sketcher.Constraint("DistanceX", 2, 2, 2, 1, Q("2 mm")),
    Sketcher.Constraint("Angle", 3, Q("135 deg")),
    Sketcher.Constraint("DistanceX", 0, 1, 0, 2, Q("2.5 mm")),
    Sketcher.Constraint("DistanceY", 1, 2, 1, 1, Q("13.7 mm")),
    Sketcher.Constraint("DistanceX", 0, 2, -1, 1, Q("20.76 mm")),
    Sketcher.Constraint("DistanceY", -1, 1, 0, 2, Q("63.35 mm")),
])
revolution = body.newObject("PartDesign::Revolution", "Revolution")
revolution.Profile = sketch18
revolution.ReferenceAxis = (sketch18, ["Axis0"])
revolution.Angle = 360

sketch19 = body.newObject("Sketcher::SketchObject", "Sketch018")
sketch19.AttachmentSupport = (doc.getObject("XY_Plane"), [""])
sketch19.MapMode = "FlatFace"
sketch19.AttachmentOffset = App.Placement(V(0, 0, -56.0424), App.Rotation())
sketch19.addGeometry(Part.Circle(V(-11.3, 11.2, 0), V(0, 0, 1), 2.5), False)
sketch19.addConstraint([
    Sketcher.Constraint("Diameter", 0, Q("5 mm")),
    Sketcher.Constraint("DistanceX", 0, 3, -1, 1, Q("11.329 mm")),
    Sketcher.Constraint("DistanceY", -1, 1, 0, 3, Q("11.2316 mm")),
])
pocket7 = body.newObject("PartDesign::Pocket", "Pocket006")
pocket7.Profile = sketch19
pocket7.Type = "UpToFirst"
pocket7.Reversed = True

sketch20 = body.newObject("Sketcher::SketchObject", "Sketch019")
sketch20.AttachmentSupport = (doc.getObject("XZ_Plane"), [""])
sketch20.MapMode = "FlatFace"
sketch20.AttachmentOffset = App.Placement(V(0, 0, -11.2316), App.Rotation())
sketch20.addGeometry([
    Part.LineSegment(V(-13.3, -47.4, 0), V(-11.3, -47.4, 0)),
    Part.LineSegment(V(-11.3, -47.4, 0), V(-11.3, -61, 0)),
    Part.LineSegment(V(-11.3, -61, 0), V(-13.8, -61, 0)),
    Part.LineSegment(V(-13.8, -61, 0), V(-13.8, -47.9, 0)),
    Part.LineSegment(V(-13.8, -47.9, 0), V(-13.3, -47.4, 0)),
], False)
sketch20.addGeometry(Part.LineSegment(V(-11.3, -47.4, 0), V(-11.3, -61, 0)), True)
sketch20.addConstraint([
    Sketcher.Constraint("Coincident", 0, 2, 1, 1),
    Sketcher.Constraint("Coincident", 1, 2, 2, 1),
    Sketcher.Constraint("Coincident", 2, 2, 3, 1),
    Sketcher.Constraint("Coincident", 3, 2, 4, 1),
    Sketcher.Constraint("Coincident", 4, 2, 0, 1),
    Sketcher.Constraint("Horizontal", 0),
    Sketcher.Constraint("Vertical", 1),
    Sketcher.Constraint("Horizontal", 2),
    Sketcher.Constraint("Vertical", 3),
    Sketcher.Constraint("Vertical", 5),
    Sketcher.Constraint("Coincident", 5, 1, 0, 2),
    Sketcher.Constraint("Horizontal", 2, 2, 5, 2),
    Sketcher.Constraint("DistanceX", 0, 1, 0, 2, Q("2 mm")),
    Sketcher.Constraint("Angle", 4, Q("45 deg")),
    Sketcher.Constraint("DistanceX", 2, 2, 2, 1, Q("2.5 mm")),
    Sketcher.Constraint("DistanceY", 1, 2, 1, 1, Q("13.7 mm")),
    Sketcher.Constraint("DistanceY", 0, 2, -1, 1, Q("47.35 mm")),
    Sketcher.Constraint("DistanceX", 0, 2, -1, 1, Q("11.329 mm")),
])
revolution2 = body.newObject("PartDesign::Revolution", "Revolution001")
revolution2.Profile = sketch20
revolution2.ReferenceAxis = (sketch20, ["Axis0"])
revolution2.Angle = 360
doc.recompute()

chamfer2 = body.newObject("PartDesign::Chamfer", "Chamfer001")
chamfer2.Base = (revolution2, edges_at(revolution2, [(-23.26, 10.369, 63.35), (-8.829, 11.232, -61.05)]))
chamfer2.Size = 0.5

doc.recompute()
